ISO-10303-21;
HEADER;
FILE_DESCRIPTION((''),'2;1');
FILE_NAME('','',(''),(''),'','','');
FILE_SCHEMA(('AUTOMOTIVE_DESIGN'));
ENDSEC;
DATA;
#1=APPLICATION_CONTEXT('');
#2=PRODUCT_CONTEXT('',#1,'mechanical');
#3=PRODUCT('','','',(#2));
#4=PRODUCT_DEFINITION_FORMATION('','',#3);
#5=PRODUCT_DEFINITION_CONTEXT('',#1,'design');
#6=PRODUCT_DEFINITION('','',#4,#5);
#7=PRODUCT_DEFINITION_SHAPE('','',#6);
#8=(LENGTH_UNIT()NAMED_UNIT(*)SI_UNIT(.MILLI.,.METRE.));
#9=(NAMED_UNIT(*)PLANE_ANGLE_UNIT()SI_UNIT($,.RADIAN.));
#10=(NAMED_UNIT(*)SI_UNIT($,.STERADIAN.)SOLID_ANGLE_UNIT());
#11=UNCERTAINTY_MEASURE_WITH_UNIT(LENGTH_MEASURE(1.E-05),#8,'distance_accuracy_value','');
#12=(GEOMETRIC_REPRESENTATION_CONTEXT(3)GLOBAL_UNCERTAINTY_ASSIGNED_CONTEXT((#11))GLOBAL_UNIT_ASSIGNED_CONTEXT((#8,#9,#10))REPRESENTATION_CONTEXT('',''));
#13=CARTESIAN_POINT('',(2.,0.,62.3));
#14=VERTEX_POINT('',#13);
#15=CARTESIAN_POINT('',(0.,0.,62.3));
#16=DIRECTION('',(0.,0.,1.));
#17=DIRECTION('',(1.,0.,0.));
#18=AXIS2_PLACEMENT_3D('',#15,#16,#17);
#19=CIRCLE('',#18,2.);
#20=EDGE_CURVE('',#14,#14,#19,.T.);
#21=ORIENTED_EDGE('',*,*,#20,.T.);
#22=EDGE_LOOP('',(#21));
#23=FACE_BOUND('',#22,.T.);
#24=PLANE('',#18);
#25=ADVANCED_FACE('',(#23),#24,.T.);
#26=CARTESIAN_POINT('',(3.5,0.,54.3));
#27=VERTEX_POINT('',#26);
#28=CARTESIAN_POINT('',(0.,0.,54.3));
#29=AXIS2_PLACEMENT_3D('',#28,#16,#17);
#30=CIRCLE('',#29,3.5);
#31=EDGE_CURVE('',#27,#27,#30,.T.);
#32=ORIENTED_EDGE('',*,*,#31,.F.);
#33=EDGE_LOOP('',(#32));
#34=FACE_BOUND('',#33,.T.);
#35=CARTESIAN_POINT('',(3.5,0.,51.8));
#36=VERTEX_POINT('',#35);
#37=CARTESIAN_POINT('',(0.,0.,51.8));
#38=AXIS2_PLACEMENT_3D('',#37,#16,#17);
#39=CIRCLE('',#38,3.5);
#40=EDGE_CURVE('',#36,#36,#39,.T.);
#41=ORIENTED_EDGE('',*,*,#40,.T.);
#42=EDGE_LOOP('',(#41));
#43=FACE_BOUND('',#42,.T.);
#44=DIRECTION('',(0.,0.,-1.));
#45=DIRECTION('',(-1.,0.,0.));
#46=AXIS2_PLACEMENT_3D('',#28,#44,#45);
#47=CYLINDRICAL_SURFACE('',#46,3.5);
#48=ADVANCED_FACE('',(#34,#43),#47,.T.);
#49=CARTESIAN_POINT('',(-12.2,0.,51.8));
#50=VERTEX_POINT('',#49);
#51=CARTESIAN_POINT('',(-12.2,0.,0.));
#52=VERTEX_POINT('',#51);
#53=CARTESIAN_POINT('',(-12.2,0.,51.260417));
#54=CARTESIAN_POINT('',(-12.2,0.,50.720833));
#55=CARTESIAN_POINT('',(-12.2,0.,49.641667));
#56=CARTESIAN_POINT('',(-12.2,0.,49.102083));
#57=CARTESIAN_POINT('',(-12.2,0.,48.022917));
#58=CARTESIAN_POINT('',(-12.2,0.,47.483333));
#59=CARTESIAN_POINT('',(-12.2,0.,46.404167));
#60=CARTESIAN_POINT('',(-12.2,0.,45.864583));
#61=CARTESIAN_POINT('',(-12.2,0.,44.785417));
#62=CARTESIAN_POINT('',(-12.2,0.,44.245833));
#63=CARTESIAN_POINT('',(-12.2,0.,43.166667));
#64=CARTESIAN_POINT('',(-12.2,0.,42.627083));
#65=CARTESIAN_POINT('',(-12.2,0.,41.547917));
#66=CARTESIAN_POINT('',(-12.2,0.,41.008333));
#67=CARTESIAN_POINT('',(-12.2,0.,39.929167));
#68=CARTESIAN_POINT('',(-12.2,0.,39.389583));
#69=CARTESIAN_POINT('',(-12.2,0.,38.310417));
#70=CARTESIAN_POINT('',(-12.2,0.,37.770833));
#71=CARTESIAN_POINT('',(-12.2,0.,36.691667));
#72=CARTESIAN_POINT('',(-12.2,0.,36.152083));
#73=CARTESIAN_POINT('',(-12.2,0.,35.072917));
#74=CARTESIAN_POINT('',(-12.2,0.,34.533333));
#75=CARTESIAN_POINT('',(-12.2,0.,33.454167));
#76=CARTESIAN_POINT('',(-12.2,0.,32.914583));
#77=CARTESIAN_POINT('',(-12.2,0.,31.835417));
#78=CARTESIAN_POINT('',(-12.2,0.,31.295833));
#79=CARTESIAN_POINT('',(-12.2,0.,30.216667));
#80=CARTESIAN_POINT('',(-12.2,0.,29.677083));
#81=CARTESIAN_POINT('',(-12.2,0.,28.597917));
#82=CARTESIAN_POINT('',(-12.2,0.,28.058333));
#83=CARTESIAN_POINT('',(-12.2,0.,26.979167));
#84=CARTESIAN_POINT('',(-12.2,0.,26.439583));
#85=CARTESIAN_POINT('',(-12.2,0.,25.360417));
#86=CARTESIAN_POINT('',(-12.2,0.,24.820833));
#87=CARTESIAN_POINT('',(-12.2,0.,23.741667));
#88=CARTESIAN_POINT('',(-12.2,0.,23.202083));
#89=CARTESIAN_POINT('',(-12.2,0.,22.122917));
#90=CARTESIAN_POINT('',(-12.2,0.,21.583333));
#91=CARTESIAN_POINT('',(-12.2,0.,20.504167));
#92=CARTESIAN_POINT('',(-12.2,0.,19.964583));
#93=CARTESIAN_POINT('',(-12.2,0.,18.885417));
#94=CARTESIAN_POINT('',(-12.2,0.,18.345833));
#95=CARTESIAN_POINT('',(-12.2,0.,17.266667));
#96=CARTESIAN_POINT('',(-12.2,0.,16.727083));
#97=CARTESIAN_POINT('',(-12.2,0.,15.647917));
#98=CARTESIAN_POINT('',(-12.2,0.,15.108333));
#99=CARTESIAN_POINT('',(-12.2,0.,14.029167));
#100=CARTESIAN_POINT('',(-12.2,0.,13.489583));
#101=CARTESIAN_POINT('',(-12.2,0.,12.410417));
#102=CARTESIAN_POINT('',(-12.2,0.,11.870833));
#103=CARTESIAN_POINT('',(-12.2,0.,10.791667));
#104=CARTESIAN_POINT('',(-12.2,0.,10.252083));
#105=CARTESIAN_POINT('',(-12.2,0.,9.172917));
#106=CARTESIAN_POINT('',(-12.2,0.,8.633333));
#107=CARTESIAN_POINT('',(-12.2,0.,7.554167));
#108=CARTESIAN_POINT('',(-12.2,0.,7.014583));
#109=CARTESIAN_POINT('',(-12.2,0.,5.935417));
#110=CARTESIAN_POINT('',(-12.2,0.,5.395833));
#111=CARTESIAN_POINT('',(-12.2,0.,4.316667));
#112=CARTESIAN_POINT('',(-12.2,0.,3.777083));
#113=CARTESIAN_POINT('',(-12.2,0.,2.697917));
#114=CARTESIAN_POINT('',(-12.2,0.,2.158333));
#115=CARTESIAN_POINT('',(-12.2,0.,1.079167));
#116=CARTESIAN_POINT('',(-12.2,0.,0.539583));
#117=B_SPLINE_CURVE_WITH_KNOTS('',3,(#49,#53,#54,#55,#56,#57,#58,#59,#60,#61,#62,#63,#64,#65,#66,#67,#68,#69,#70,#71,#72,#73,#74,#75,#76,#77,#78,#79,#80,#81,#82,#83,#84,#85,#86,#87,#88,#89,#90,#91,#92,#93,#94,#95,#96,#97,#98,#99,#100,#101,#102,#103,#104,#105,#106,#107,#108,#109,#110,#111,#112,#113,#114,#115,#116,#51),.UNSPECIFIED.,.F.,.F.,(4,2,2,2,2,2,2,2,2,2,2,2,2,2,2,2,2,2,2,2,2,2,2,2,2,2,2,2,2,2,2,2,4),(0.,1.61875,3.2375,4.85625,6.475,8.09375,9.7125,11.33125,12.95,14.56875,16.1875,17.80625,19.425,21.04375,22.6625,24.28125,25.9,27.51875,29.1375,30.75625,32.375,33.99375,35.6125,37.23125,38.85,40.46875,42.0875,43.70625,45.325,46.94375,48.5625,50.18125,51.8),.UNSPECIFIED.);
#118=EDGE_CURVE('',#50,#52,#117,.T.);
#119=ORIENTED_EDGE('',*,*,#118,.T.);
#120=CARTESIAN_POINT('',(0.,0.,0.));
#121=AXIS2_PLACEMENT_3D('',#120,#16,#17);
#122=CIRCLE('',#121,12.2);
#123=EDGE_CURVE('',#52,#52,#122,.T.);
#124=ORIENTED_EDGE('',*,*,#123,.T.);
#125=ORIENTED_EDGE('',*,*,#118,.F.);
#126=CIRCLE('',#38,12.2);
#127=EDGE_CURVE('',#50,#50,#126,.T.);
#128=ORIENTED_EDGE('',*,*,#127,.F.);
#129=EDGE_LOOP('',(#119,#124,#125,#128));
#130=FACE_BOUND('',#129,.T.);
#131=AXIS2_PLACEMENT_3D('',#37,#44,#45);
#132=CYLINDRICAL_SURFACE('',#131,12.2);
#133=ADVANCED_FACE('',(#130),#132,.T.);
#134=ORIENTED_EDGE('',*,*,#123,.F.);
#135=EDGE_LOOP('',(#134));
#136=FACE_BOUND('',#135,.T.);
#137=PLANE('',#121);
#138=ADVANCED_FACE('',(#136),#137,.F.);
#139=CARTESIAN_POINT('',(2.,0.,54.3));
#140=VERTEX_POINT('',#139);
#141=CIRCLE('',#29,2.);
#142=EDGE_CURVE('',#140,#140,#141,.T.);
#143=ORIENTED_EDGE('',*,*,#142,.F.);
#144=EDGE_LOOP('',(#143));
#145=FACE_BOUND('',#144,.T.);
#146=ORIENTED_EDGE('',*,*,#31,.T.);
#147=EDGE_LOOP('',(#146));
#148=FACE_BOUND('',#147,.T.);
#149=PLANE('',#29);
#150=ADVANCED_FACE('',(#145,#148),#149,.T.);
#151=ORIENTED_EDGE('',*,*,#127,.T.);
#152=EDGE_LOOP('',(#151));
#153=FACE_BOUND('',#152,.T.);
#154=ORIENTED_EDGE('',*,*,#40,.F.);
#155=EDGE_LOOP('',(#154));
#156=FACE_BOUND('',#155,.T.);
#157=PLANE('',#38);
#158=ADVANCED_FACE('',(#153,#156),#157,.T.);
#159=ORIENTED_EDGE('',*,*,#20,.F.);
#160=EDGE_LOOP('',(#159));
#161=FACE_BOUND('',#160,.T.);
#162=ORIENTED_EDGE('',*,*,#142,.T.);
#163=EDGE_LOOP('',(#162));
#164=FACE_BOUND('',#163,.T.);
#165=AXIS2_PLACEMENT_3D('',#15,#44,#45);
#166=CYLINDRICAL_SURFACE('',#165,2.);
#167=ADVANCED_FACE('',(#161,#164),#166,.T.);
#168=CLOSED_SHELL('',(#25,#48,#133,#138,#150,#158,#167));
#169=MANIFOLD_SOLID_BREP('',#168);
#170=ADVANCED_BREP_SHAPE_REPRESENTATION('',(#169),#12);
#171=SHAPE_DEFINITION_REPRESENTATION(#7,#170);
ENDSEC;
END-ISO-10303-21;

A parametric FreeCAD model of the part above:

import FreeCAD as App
import Part
import Sketcher
Q = App.Units.Quantity

doc = App.newDocument("Part")
body = doc.addObject("PartDesign::Body", "Body")

sketch1 = doc.addObject("Sketcher::SketchObject", "Sketch")
body.addObject(sketch1)
sketch1.AttachmentSupport = (doc.XY_Plane, [""])
sketch1.MapMode = "FlatFace"
sketch1.addGeometry(Part.Circle(App.Vector(0, 0, 0), App.Vector(0, 0, 1), 12.2), False)
sketch1.addConstraint([
    Sketcher.Constraint("Coincident", 0, 3, -1, 1),
    Sketcher.Constraint("Diameter", 0, Q("24.4 mm")),
])
pad1 = doc.addObject("PartDesign::Pad", "Pad")
body.addObject(pad1)
pad1.Profile = sketch1
pad1.Length = 51.8

sketch2 = doc.addObject("Sketcher::SketchObject", "Sketch001")
body.addObject(sketch2)
sketch2.AttachmentSupport = (doc.XY_Plane, [""])
sketch2.MapMode = "FlatFace"
sketch2.AttachmentOffset = App.Placement(App.Vector(0, 0, 51.8), App.Rotation())
sketch2.addGeometry(Part.Circle(App.Vector(0, 0, 0), App.Vector(0, 0, 1), 3.5), False)
sketch2.addConstraint([
    Sketcher.Constraint("Coincident", 0, 3, -1, 1),
    Sketcher.Constraint("Diameter", 0, Q("7 mm")),
])
pad2 = doc.addObject("PartDesign::Pad", "Pad001")
body.addObject(pad2)
pad2.Profile = sketch2
pad2.Length = 2.5

sketch3 = doc.addObject("Sketcher::SketchObject", "Sketch002")
body.addObject(sketch3)
sketch3.AttachmentSupport = (doc.XY_Plane, [""])
sketch3.MapMode = "FlatFace"
sketch3.AttachmentOffset = App.Placement(App.Vector(0, 0, 54.3), App.Rotation())
sketch3.addGeometry(Part.Circle(App.Vector(0, 0, 0), App.Vector(0, 0, 1), 2), False)
sketch3.addConstraint([
    Sketcher.Constraint("Coincident", 0, 3, -1, 1),
    Sketcher.Constraint("Diameter", 0, Q("4 mm")),
])
pad3 = doc.addObject("PartDesign::Pad", "Pad002")
body.addObject(pad3)
pad3.Profile = sketch3
pad3.Length = 8

doc.recompute()
